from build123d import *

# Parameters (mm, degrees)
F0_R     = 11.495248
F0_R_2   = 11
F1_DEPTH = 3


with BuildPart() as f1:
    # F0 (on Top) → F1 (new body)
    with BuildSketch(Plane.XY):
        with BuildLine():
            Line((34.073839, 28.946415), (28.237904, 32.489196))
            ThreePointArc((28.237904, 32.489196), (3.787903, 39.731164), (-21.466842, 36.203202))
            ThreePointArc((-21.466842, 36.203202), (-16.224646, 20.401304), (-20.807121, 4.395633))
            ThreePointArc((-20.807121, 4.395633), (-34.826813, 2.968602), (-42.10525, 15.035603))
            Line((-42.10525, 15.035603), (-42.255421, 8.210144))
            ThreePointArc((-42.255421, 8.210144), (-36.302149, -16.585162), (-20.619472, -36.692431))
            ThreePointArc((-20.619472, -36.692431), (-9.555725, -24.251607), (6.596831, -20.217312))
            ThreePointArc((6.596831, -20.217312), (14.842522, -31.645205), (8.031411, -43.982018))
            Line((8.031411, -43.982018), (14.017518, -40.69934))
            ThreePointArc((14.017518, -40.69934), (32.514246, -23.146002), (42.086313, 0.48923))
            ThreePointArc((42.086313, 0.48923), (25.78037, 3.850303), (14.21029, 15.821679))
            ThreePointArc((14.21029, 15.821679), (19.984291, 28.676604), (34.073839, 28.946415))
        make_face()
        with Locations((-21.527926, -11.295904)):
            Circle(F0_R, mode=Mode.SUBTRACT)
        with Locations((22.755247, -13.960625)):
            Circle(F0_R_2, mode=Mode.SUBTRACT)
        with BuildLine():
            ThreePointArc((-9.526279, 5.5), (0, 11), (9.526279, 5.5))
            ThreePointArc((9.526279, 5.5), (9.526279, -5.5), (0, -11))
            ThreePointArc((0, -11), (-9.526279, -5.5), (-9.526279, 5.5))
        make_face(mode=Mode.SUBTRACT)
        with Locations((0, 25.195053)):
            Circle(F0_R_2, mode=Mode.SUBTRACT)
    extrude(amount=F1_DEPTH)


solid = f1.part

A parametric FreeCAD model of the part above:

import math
import FreeCAD as App
import Part
import Sketcher

doc = App.newDocument("Part")
body = doc.addObject("PartDesign::Body", "Body")

# Sketch on XY plane
sketch1 = body.newObject("Sketcher::SketchObject", "Sketch")
sketch1.AttachmentSupport = (doc.getObject("XY_Plane"), [""])
sketch1.MapMode = "FlatFace"
sketch1.addGeometry(Part.LineSegment(App.Vector(34, 29, 0), App.Vector(28, 32, 0)), False)
sketch1.addGeometry(Part.ArcOfCircle(Part.Circle(App.Vector(-1, -20, 0), App.Vector(0, 0, 1), 60), math.radians(61), math.radians(110)), False)
sketch1.addGeometry(Part.ArcOfCircle(Part.Circle(App.Vector(-44, 20, 0), App.Vector(0, 0, 1), 28), math.radians(-33), math.radians(36)), False)
sketch1.addGeometry(Part.ArcOfCircle(Part.Circle(App.Vector(-29, 15, 0), App.Vector(0, 0, 1), 13), math.radians(179), math.radians(308)), False)
sketch1.addGeometry(Part.LineSegment(App.Vector(-42, 15, 0), App.Vector(-42, 8, 0)), False)
sketch1.addGeometry(Part.ArcOfCircle(Part.Circle(App.Vector(18, 10, 0), App.Vector(0, 0, 1), 60), math.radians(-179), math.radians(-130)), False)
sketch1.addGeometry(Part.ArcOfCircle(Part.Circle(App.Vector(5, -48, 0), App.Vector(0, 0, 1), 28), math.radians(87), math.radians(156)), False)
sketch1.addGeometry(Part.ArcOfCircle(Part.Circle(App.Vector(2, -32, 0), App.Vector(0, 0, 1), 13), math.radians(-61), math.radians(68)), False)
sketch1.addGeometry(Part.LineSegment(App.Vector(8, -44, 0), App.Vector(14, -41, 0)), False)
sketch1.addGeometry(Part.ArcOfCircle(Part.Circle(App.Vector(-17, 11, 0), App.Vector(0, 0, 1), 60), math.radians(-59), math.radians(-10)), False)
sketch1.addGeometry(Part.ArcOfCircle(Part.Circle(App.Vector(39, 29, 0), App.Vector(0, 0, 1), 28), math.radians(-153), math.radians(-84)), False)
sketch1.addGeometry(Part.ArcOfCircle(Part.Circle(App.Vector(27, 18, 0), App.Vector(0, 0, 1), 13), math.radians(59), math.radians(188)), False)
sketch1.addGeometry(Part.Circle(App.Vector(-22, -11, 0), App.Vector(0, 0, 1), 11), False)
sketch1.addGeometry(Part.ArcOfCircle(Part.Circle(App.Vector(0, 0, 0), App.Vector(0, 0, 1), 11), math.radians(150), math.radians(270)), False)
sketch1.addGeometry(Part.ArcOfCircle(Part.Circle(App.Vector(0, 0, 0), App.Vector(0, 0, 1), 11), math.radians(30), math.radians(150)), False)
sketch1.addGeometry(Part.ArcOfCircle(Part.Circle(App.Vector(0, 0, 0), App.Vector(0, 0, 1), 11), math.radians(-90), math.radians(30)), False)
sketch1.addGeometry(Part.Circle(App.Vector(23, -14, 0), App.Vector(0, 0, 1), 11), False)
sketch1.addGeometry(Part.Circle(App.Vector(0, 25, 0), App.Vector(0, 0, 1), 11), False)
sketch1.addConstraint(Sketcher.Constraint("Coincident", 0, 2, 1, 1))
sketch1.addConstraint(Sketcher.Constraint("Coincident", 1, 2, 2, 2))
sketch1.addConstraint(Sketcher.Constraint("Coincident", 2, 1, 3, 2))
sketch1.addConstraint(Sketcher.Constraint("Tangent", 3, 1, 4, 1))
sketch1.addConstraint(Sketcher.Constraint("Coincident", 4, 2, 5, 1))
sketch1.addConstraint(Sketcher.Constraint("Coincident", 5, 2, 6, 2))
sketch1.addConstraint(Sketcher.Constraint("Coincident", 6, 1, 7, 2))
sketch1.addConstraint(Sketcher.Constraint("Tangent", 7, 1, 8, 1))
sketch1.addConstraint(Sketcher.Constraint("Coincident", 8, 2, 9, 1))
sketch1.addConstraint(Sketcher.Constraint("Coincident", 9, 2, 10, 2))
sketch1.addConstraint(Sketcher.Constraint("Coincident", 10, 1, 11, 2))
sketch1.addConstraint(Sketcher.Constraint("Tangent", 11, 1, 0, 1))
sketch1.addConstraint(Sketcher.Constraint("Tangent", 13, 1, 14, 2))
sketch1.addConstraint(Sketcher.Constraint("Tangent", 14, 1, 15, 2))
sketch1.addConstraint(Sketcher.Constraint("Tangent", 15, 1, 13, 2))
sketch1.addConstraint(Sketcher.Constraint("Coincident", 13, 3, -1, 1))
sketch1.addConstraint(Sketcher.Constraint("Equal", 3, 7))
sketch1.addConstraint(Sketcher.Constraint("Equal", 5, 9))
sketch1.addConstraint(Sketcher.Constraint("Equal", 7, 11))
sketch1.addConstraint(Sketcher.Constraint("Equal", 15, 16))
sketch1.addConstraint(Sketcher.Constraint("Equal", 16, 17))
sketch1.addConstraint(Sketcher.Constraint("PointOnObject", 17, 3, -2))
sketch1.addConstraint(Sketcher.Constraint("PointOnObject", 15, 1, -2))
sketch1.addConstraint(Sketcher.Constraint("Horizontal", 13, 1, 14, 1))
sketch1.addConstraint(Sketcher.Constraint("Equal", 0, 4))
sketch1.addConstraint(Sketcher.Constraint("Equal", 4, 8))
sketch1.addConstraint(Sketcher.Constraint("Diameter", 16, 22.0))
sketch1.addConstraint(Sketcher.Constraint("DistanceY", -1, 1, 13, 1, 5.5))
sketch1.addConstraint(Sketcher.Constraint("Radius", 3, 13.165301))
sketch1.addConstraint(Sketcher.Constraint("Radius", 5, 60.208462))
sketch1.addConstraint(Sketcher.Constraint("Radius", 6, 28.206641))
sketch1.addConstraint(Sketcher.Constraint("Radius", 10, 28.206639))
sketch1.addConstraint(Sketcher.Constraint("Diameter", 12, 22.990496))
sketch1.addConstraint(Sketcher.Constraint("Radius", 1, 60.208466))
sketch1.addConstraint(Sketcher.Constraint("Radius", 2, 28.206643))
sketch1.addConstraint(Sketcher.Constraint("DistanceX", 2, 3, 12, 3, 22.897298))
sketch1.addConstraint(Sketcher.Constraint("DistanceY", 12, 3, 2, 3, 31.1123))
sketch1.addConstraint(Sketcher.Constraint("DistanceY", 14, 3, 1, 2, 36.203201))
sketch1.addConstraint(Sketcher.Constraint("DistanceY", 2, 1, 9, 3, 6.3642))
sketch1.addConstraint(Sketcher.Constraint("DistanceY", 3, 1, 1, 2, 21.167599))
sketch1.addConstraint(Sketcher.Constraint("DistanceX", 4, 2, 2, 1, 21.4483))
sketch1.addConstraint(Sketcher.Constraint("DistanceX", 10, 3, 9, 2, 2.712202))
sketch1.addConstraint(Sketcher.Constraint("DistanceX", 10, 1, 11, 3, 13.031701))
sketch1.addConstraint(Sketcher.Constraint("Distance", 0, 6.82711))
sketch1.addConstraint(Sketcher.Constraint("DistanceX", 1, 3, -1, 1, 0.698448))
sketch1.addConstraint(Sketcher.Constraint("DistanceY", 1, 3, -1, 1, 20.309922))
sketch1.addConstraint(Sketcher.Constraint("DistanceX", -1, 1, 5, 3, 17.938129))
sketch1.addConstraint(Sketcher.Constraint("DistanceY", 6, 3, -1, 1, 48.381568))
sketch1.addConstraint(Sketcher.Constraint("DistanceX", -1, 1, 10, 3, 39.374111))
sketch1.addConstraint(Sketcher.Constraint("DistanceY", -1, 1, 10, 3, 28.56517))
sketch1.addConstraint(Sketcher.Constraint("DistanceX", -1, 1, 11, 3, 27.241991))
sketch1.addConstraint(Sketcher.Constraint("DistanceX", 3, 1, -1, 1, 42.10525))
sketch1.addConstraint(Sketcher.Constraint("DistanceX", 4, 2, -1, 1, 42.255421))
sketch1.addConstraint(Sketcher.Constraint("DistanceY", 5, 2, -1, 1, 36.692431))
sketch1.addConstraint(Sketcher.Constraint("DistanceX", -1, 1, 6, 1, 6.596831))
sketch1.addConstraint(Sketcher.Constraint("DistanceX", -1, 1, 7, 1, 8.031411))
sketch1.addConstraint(Sketcher.Constraint("DistanceX", 5, 3, 16, 3, 4.817118))
sketch1.addConstraint(Sketcher.Constraint("DistanceY", 16, 3, 5, 3, 23.51071))
sketch1.addConstraint(Sketcher.Constraint("DistanceY", 9, 3, 17, 3, 14.43522))
pad1 = body.newObject("PartDesign::Pad", "Pad")
pad1.Profile = sketch1
pad1.Length = 3

doc.recompute()
